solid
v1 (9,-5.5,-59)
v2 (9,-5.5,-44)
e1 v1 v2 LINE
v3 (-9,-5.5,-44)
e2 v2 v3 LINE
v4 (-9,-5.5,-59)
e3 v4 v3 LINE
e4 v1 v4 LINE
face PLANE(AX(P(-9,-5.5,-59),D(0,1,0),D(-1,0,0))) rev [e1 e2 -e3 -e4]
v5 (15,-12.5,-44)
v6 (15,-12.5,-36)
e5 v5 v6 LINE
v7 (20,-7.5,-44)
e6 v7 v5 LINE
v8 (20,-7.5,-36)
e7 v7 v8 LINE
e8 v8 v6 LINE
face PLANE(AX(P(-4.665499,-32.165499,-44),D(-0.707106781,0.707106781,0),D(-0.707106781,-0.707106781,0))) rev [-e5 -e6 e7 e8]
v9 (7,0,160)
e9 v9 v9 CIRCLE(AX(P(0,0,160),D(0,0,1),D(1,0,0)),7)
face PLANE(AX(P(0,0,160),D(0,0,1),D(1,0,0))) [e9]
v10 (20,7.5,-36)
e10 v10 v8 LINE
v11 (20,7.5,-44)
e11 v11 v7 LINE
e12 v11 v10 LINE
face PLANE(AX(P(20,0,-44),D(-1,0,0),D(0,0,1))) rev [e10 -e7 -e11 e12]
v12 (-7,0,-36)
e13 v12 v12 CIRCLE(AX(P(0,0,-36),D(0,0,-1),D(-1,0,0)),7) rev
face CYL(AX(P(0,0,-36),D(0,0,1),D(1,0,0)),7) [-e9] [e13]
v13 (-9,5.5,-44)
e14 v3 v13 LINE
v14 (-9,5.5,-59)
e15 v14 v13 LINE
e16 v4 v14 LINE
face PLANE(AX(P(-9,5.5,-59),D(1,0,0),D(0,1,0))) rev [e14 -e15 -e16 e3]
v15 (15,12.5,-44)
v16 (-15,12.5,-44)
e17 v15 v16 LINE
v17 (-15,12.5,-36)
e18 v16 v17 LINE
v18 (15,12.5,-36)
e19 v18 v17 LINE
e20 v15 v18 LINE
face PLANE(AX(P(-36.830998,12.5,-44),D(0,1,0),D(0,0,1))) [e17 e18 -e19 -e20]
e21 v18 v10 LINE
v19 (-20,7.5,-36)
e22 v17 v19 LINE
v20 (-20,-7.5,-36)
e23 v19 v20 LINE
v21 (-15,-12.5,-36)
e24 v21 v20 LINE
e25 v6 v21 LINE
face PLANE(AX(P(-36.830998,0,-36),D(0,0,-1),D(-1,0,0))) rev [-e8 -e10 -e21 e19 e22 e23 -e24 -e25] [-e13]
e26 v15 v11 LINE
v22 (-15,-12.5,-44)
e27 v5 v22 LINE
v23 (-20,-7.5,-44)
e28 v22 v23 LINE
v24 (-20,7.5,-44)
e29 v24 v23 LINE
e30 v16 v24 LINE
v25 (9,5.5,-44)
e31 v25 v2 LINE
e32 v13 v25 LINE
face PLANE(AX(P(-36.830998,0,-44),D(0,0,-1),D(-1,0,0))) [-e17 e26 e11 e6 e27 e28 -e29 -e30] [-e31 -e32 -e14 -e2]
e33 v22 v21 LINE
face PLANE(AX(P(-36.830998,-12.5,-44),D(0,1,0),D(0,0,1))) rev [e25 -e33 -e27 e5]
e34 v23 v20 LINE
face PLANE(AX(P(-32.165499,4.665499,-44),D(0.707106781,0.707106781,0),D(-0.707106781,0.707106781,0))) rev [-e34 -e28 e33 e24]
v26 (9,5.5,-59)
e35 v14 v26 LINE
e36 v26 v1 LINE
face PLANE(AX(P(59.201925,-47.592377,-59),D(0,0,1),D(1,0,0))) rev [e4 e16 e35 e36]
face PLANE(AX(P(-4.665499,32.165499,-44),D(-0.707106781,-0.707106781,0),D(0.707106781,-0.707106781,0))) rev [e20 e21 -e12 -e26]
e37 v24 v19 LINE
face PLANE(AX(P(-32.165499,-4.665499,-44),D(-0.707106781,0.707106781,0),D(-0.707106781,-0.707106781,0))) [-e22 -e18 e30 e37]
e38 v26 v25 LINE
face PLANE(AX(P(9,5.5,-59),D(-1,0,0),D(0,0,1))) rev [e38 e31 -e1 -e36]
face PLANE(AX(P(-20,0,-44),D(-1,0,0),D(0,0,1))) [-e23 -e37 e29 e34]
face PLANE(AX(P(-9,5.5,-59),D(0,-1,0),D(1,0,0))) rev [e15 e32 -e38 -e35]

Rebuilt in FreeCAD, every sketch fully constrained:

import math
import FreeCAD as App
import Part
import Sketcher
Q = App.Units.Quantity

doc = App.newDocument("Part")
body = doc.addObject("PartDesign::Body", "Body")

# Sketch on XY plane
sketch1 = body.newObject("Sketcher::SketchObject", "Sketch")
sketch1.AttachmentSupport = (doc.getObject("XY_Plane"), [""])
sketch1.MapMode = "FlatFace"
sketch1.addGeometry(Part.Circle(App.Vector(0, 0, 0), App.Vector(0, 0, 1), 7), False)
sketch1.addConstraint([
    Sketcher.Constraint("Coincident", 0, 3, -1, 1),
    Sketcher.Constraint("Diameter", 0, Q("14 mm")),
])
pad1 = body.newObject("PartDesign::Pad", "Pad")
pad1.Profile = sketch1
pad1.Type = "TwoLengths"
pad1.Length = 160
pad1.Length2 = 36

# Sketch on XY plane
sketch2 = body.newObject("Sketcher::SketchObject", "Sketch001")
sketch2.AttachmentSupport = (doc.getObject("XY_Plane"), [""])
sketch2.MapMode = "FlatFace"
sketch2.AttachmentOffset = App.Placement(App.Vector(0, 0, -36), App.Rotation())
sketch2.addGeometry([
    Part.LineSegment(App.Vector(-20, 7.5, 0), App.Vector(-15, 12.5, 0)),  # 0
    Part.LineSegment(App.Vector(-15, 12.5, 0), App.Vector(15, 12.5, 0)),  # 1
    Part.LineSegment(App.Vector(15, 12.5, 0), App.Vector(20, 7.5, 0)),  # 2
    Part.LineSegment(App.Vector(20, 7.5, 0), App.Vector(20, -7.5, 0)),  # 3
    Part.LineSegment(App.Vector(20, -7.5, 0), App.Vector(15, -12.5, 0)),  # 4
    Part.LineSegment(App.Vector(15, -12.5, 0), App.Vector(-15, -12.5, 0)),  # 5
    Part.LineSegment(App.Vector(-15, -12.5, 0), App.Vector(-20, -7.5, 0)),  # 6
    Part.LineSegment(App.Vector(-20, -7.5, 0), App.Vector(-20, 7.5, 0)),  # 7
], False)
sketch2.addConstraint([
    Sketcher.Constraint("Coincident", 0, 2, 1, 1),
    Sketcher.Constraint("Coincident", 1, 2, 2, 1),
    Sketcher.Constraint("Coincident", 2, 2, 3, 1),
    Sketcher.Constraint("Coincident", 3, 2, 4, 1),
    Sketcher.Constraint("Coincident", 4, 2, 5, 1),
    Sketcher.Constraint("Coincident", 5, 2, 6, 1),
    Sketcher.Constraint("Coincident", 6, 2, 7, 1),
    Sketcher.Constraint("Coincident", 7, 2, 0, 1),
    Sketcher.Constraint("Horizontal", 1),
    Sketcher.Constraint("Vertical", 3),
    Sketcher.Constraint("Horizontal", 5),
    Sketcher.Constraint("Vertical", 7),
    Sketcher.Constraint("Symmetric", 0, 2, 4, 2, -1, 1),
    Sketcher.Constraint("Symmetric", 2, 2, 6, 2, -1, 1),
    Sketcher.Constraint("Perpendicular", 0, 2),
    Sketcher.Constraint("Perpendicular", 2, 4),
    Sketcher.Constraint("Perpendicular", 4, 6),
    Sketcher.Constraint("Horizontal", 3, 2, 6, 2),
    Sketcher.Constraint("Vertical", 1, 2, 4, 2),
    Sketcher.Constraint("DistanceX", 1, 1, 1, 2, Q("30 mm")),
    Sketcher.Constraint("DistanceY", 3, 2, 3, 1, Q("15 mm")),
    Sketcher.Constraint("DistanceX", -1, 1, 2, 2, Q("20 mm")),
])
pad2 = body.newObject("PartDesign::Pad", "Pad001")
pad2.Profile = sketch2
pad2.Length = 8
pad2.Reversed = True

# Sketch on XY plane
sketch3 = body.newObject("Sketcher::SketchObject", "Sketch002")
sketch3.AttachmentSupport = (doc.getObject("XY_Plane"), [""])
sketch3.MapMode = "FlatFace"
sketch3.AttachmentOffset = App.Placement(App.Vector(0, 0, -44), App.Rotation())
sketch3.addGeometry([
    Part.LineSegment(App.Vector(9, 5.5, 0), App.Vector(9, -5.5, 0)),
    Part.LineSegment(App.Vector(9, -5.5, 0), App.Vector(-9, -5.5, 0)),
    Part.LineSegment(App.Vector(-9, -5.5, 0), App.Vector(-9, 5.5, 0)),
    Part.LineSegment(App.Vector(-9, 5.5, 0), App.Vector(9, 5.5, 0)),
], False)
sketch3.addConstraint([
    Sketcher.Constraint("Coincident", 0, 2, 1, 1),
    Sketcher.Constraint("Coincident", 1, 2, 2, 1),
    Sketcher.Constraint("Coincident", 2, 2, 3, 1),
    Sketcher.Constraint("Coincident", 3, 2, 0, 1),
    Sketcher.Constraint("Vertical", 0),
    Sketcher.Constraint("Horizontal", 1),
    Sketcher.Constraint("Vertical", 2),
    Sketcher.Constraint("Horizontal", 3),
    Sketcher.Constraint("Symmetric", 0, 2, 2, 2, -1, 1),
    Sketcher.Constraint("DistanceX", 1, 2, 1, 1, Q("18 mm")),
    Sketcher.Constraint("DistanceY", 0, 2, 0, 1, Q("11 mm")),
])
pad3 = body.newObject("PartDesign::Pad", "Pad002")
pad3.Profile = sketch3
pad3.Length = 15
pad3.Reversed = True

# Sketch on XY plane
sketch4 = body.newObject("Sketcher::SketchObject", "Sketch003")
sketch4.AttachmentSupport = (doc.getObject("XY_Plane"), [""])
sketch4.MapMode = "FlatFace"
sketch4.AttachmentOffset = App.Placement(App.Vector(0, 0, -59), App.Rotation())
sketch4.addGeometry([
    Part.ArcOfCircle(Part.Circle(App.Vector(15, 0, 0), App.Vector(0, 0, 1), 12.5), math.radians(-90), math.radians(90)),  # 0
    Part.LineSegment(App.Vector(15, -12.5, 0), App.Vector(-15, -12.5, 0)),  # 1
    Part.ArcOfCircle(Part.Circle(App.Vector(-15, 0, 0), App.Vector(0, 0, 1), 12.5), math.radians(180), math.radians(270)),  # 2
    Part.ArcOfCircle(Part.Circle(App.Vector(-15, 0, 0), App.Vector(0, 0, 1), 12.5), math.radians(90), math.radians(180)),  # 3
    Part.LineSegment(App.Vector(-15, 12.5, 0), App.Vector(15, 12.5, 0)),  # 4
], False)
sketch4.addConstraint([
    Sketcher.Constraint("Tangent", 0, 1, 1, 1),
    Sketcher.Constraint("Tangent", 1, 2, 2, 2),
    Sketcher.Constraint("Tangent", 2, 1, 3, 2),
    Sketcher.Constraint("Tangent", 3, 1, 4, 1),
    Sketcher.Constraint("Tangent", 4, 2, 0, 2),
    Sketcher.Constraint("Horizontal", 1),
    Sketcher.Constraint("Horizontal", 4),
    Sketcher.Constraint("Equal", 0, 2),
    Sketcher.Constraint("Symmetric", 0, 3, 2, 3, -1, 1),
    Sketcher.Constraint("PointOnObject", 2, 1, -1),
    Sketcher.Constraint("Radius", 0, Q("12.5 mm")),
    Sketcher.Constraint("DistanceX", 1, 2, 1, 1, Q("30 mm")),
])
pad4 = body.newObject("PartDesign::Pad", "Pad003")
pad4.Profile = sketch4
pad4.Length = 30
pad4.Reversed = True

# Sketch on XY plane
sketch5 = body.newObject("Sketcher::SketchObject", "Sketch004")
sketch5.AttachmentSupport = (doc.getObject("XY_Plane"), [""])
sketch5.MapMode = "FlatFace"
sketch5.AttachmentOffset = App.Placement(App.Vector(0, 0, -89), App.Rotation())
sketch5.addGeometry([
    Part.LineSegment(App.Vector(30, 20, 0), App.Vector(30, -20, 0)),
    Part.LineSegment(App.Vector(30, -20, 0), App.Vector(-30, -20, 0)),
    Part.LineSegment(App.Vector(-30, -20, 0), App.Vector(-30, 20, 0)),
    Part.LineSegment(App.Vector(-30, 20, 0), App.Vector(30, 20, 0)),
], False)
sketch5.addConstraint([
    Sketcher.Constraint("Coincident", 0, 2, 1, 1),
    Sketcher.Constraint("Coincident", 1, 2, 2, 1),
    Sketcher.Constraint("Coincident", 2, 2, 3, 1),
    Sketcher.Constraint("Coincident", 3, 2, 0, 1),
    Sketcher.Constraint("Vertical", 0),
    Sketcher.Constraint("Horizontal", 1),
    Sketcher.Constraint("Vertical", 2),
    Sketcher.Constraint("Horizontal", 3),
    Sketcher.Constraint("Symmetric", 0, 2, 2, 2, -1, 1),
    Sketcher.Constraint("DistanceX", 1, 2, 1, 1, Q("60 mm")),
    Sketcher.Constraint("DistanceY", 0, 2, 0, 1, Q("40 mm")),
])
pad5 = body.newObject("PartDesign::Pad", "Pad004")
pad5.Profile = sketch5
pad5.Length = 6
pad5.Reversed = True

# Sketch on XY plane
sketch6 = body.newObject("Sketcher::SketchObject", "Sketch005")
sketch6.AttachmentSupport = (doc.getObject("XY_Plane"), [""])
sketch6.MapMode = "FlatFace"
sketch6.AttachmentOffset = App.Placement(App.Vector(0, 0, -95), App.Rotation())
sketch6.addGeometry([
    Part.LineSegment(App.Vector(30, 20, 0), App.Vector(30, 14, 0)),  # 0
    Part.LineSegment(App.Vector(30, 14, 0), App.Vector(-30, 14, 0)),  # 1
    Part.LineSegment(App.Vector(-30, 14, 0), App.Vector(-30, 20, 0)),  # 2
    Part.LineSegment(App.Vector(-30, 20, 0), App.Vector(30, 20, 0)),  # 3
    Part.LineSegment(App.Vector(30, -14, 0), App.Vector(30, -20, 0)),  # 4
    Part.LineSegment(App.Vector(30, -20, 0), App.Vector(-30, -20, 0)),  # 5
    Part.LineSegment(App.Vector(-30, -20, 0), App.Vector(-30, -14, 0)),  # 6
    Part.LineSegment(App.Vector(-30, -14, 0), App.Vector(30, -14, 0)),  # 7
], False)
sketch6.addConstraint([
    Sketcher.Constraint("Coincident", 0, 2, 1, 1),
    Sketcher.Constraint("Coincident", 1, 2, 2, 1),
    Sketcher.Constraint("Coincident", 2, 2, 3, 1),
    Sketcher.Constraint("Coincident", 3, 2, 0, 1),
    Sketcher.Constraint("Coincident", 4, 2, 5, 1),
    Sketcher.Constraint("Coincident", 5, 2, 6, 1),
    Sketcher.Constraint("Coincident", 6, 2, 7, 1),
    Sketcher.Constraint("Coincident", 7, 2, 4, 1),
    Sketcher.Constraint("Vertical", 0),
    Sketcher.Constraint("Horizontal", 1),
    Sketcher.Constraint("Vertical", 2),
    Sketcher.Constraint("Horizontal", 3),
    Sketcher.Constraint("Vertical", 4),
    Sketcher.Constraint("Horizontal", 5),
    Sketcher.Constraint("Vertical", 6),
    Sketcher.Constraint("Horizontal", 7),
    Sketcher.Constraint("Symmetric", 2, 2, 4, 2, -1, 1),
    Sketcher.Constraint("Symmetric", 0, 2, 6, 2, -1, 1),
    Sketcher.Constraint("Vertical", 3, 2, 4, 2),
    Sketcher.Constraint("DistanceX", 1, 2, 1, 1, Q("60 mm")),
    Sketcher.Constraint("DistanceY", 0, 2, 0, 1, Q("6 mm")),
    Sketcher.Constraint("DistanceY", -1, 1, 0, 2, Q("14 mm")),
])
pad6 = body.newObject("PartDesign::Pad", "Pad005")
pad6.Profile = sketch6
pad6.Length = 60
pad6.Reversed = True

# Sketch on YZ plane
sketch7 = body.newObject("Sketcher::SketchObject", "Sketch006")
sketch7.AttachmentSupport = (doc.getObject("YZ_Plane"), [""])
sketch7.MapMode = "FlatFace"
sketch7.AttachmentOffset = App.Placement(App.Vector(0, 0, -30), App.Rotation())
sketch7.addGeometry([
    Part.LineSegment(App.Vector(8, -125, 0), App.Vector(14, -125, 0)),  # 0
    Part.LineSegment(App.Vector(14, -125, 0), App.Vector(14, -166, 0)),  # 1
    Part.LineSegment(App.Vector(14, -166, 0), App.Vector(4, -166, 0)),  # 2
    Part.LineSegment(App.Vector(4, -166, 0), App.Vector(4, -195.455878, 0)),  # 3
    Part.LineSegment(App.Vector(4, -195.455878, 0), App.Vector(-4, -195.455878, 0)),  # 4
    Part.LineSegment(App.Vector(-4, -195.455878, 0), App.Vector(-4, -166, 0)),  # 5
    Part.LineSegment(App.Vector(-4, -166, 0), App.Vector(-14, -166, 0)),  # 6
    Part.LineSegment(App.Vector(-14, -166, 0), App.Vector(-14, -125, 0)),  # 7
    Part.LineSegment(App.Vector(-14, -125, 0), App.Vector(-8, -125, 0)),  # 8
    Part.LineSegment(App.Vector(-8, -125, 0), App.Vector(-8, -160, 0)),  # 9
    Part.LineSegment(App.Vector(-8, -160, 0), App.Vector(8, -160, 0)),  # 10
    Part.LineSegment(App.Vector(8, -160, 0), App.Vector(8, -125, 0)),  # 11
], False)
sketch7.addConstraint([
    Sketcher.Constraint("Coincident", 0, 2, 1, 1),
    Sketcher.Constraint("Coincident", 1, 2, 2, 1),
    Sketcher.Constraint("Coincident", 2, 2, 3, 1),
    Sketcher.Constraint("Coincident", 3, 2, 4, 1),
    Sketcher.Constraint("Coincident", 4, 2, 5, 1),
    Sketcher.Constraint("Coincident", 5, 2, 6, 1),
    Sketcher.Constraint("Coincident", 6, 2, 7, 1),
    Sketcher.Constraint("Coincident", 7, 2, 8, 1),
    Sketcher.Constraint("Coincident", 8, 2, 9, 1),
    Sketcher.Constraint("Coincident", 9, 2, 10, 1),
    Sketcher.Constraint("Coincident", 10, 2, 11, 1),
    Sketcher.Constraint("Coincident", 11, 2, 0, 1),
    Sketcher.Constraint("Horizontal", 0),
    Sketcher.Constraint("Vertical", 1),
    Sketcher.Constraint("Horizontal", 2),
    Sketcher.Constraint("Vertical", 3),
    Sketcher.Constraint("Horizontal", 4),
    Sketcher.Constraint("Vertical", 5),
    Sketcher.Constraint("Horizontal", 6),
    Sketcher.Constraint("Vertical", 7),
    Sketcher.Constraint("Horizontal", 8),
    Sketcher.Constraint("Vertical", 9),
    Sketcher.Constraint("Horizontal", 10),
    Sketcher.Constraint("Vertical", 11),
    Sketcher.Constraint("Symmetric", 2, 2, 5, 2, -2),
    Sketcher.Constraint("Symmetric", 0, 2, 7, 2, -2),
    Sketcher.Constraint("Equal", 0, 8),
    Sketcher.Constraint("DistanceX", 0, 1, 0, 2, Q("6 mm")),
    Sketcher.Constraint("DistanceX", 2, 2, 2, 1, Q("10 mm")),
    Sketcher.Constraint("DistanceX", 4, 2, 4, 1, Q("8 mm")),
    Sketcher.Constraint("DistanceY", 1, 2, 1, 1, Q("41 mm")),
    Sketcher.Constraint("DistanceY", 9, 2, 9, 1, Q("35 mm")),
    Sketcher.Constraint("DistanceY", 0, 2, -1, 1, Q("125 mm")),
    Sketcher.Constraint("DistanceY", 3, 2, 3, 1, Q("29.455878 mm")),
])
pad7 = body.newObject("PartDesign::Pad", "Pad006")
pad7.Profile = sketch7
pad7.Length = 8
doc.recompute()

linearpattern = body.newObject("PartDesign::LinearPattern", "LinearPattern")
linearpattern.Originals = [pad7]
linearpattern.Direction = (doc.getObject("X_Axis"), [""])
linearpattern.Mode = "offset"
linearpattern.Offset = 52
linearpattern.Occurrences = 2
body.Tip = linearpattern

# Sketch on XY plane
sketch8 = body.newObject("Sketcher::SketchObject", "Sketch007")
sketch8.AttachmentSupport = (doc.getObject("XY_Plane"), [""])
sketch8.MapMode = "FlatFace"
sketch8.AttachmentOffset = App.Placement(App.Vector(0, 0, -59), App.Rotation())
sketch8.addGeometry([
    Part.LineSegment(App.Vector(-59.201925, 47.592377, 0), App.Vector(-59.201925, -47.592377, 0)),
    Part.LineSegment(App.Vector(-59.201925, -47.592377, 0), App.Vector(59.201925, -47.592377, 0)),
    Part.LineSegment(App.Vector(59.201925, -47.592377, 0), App.Vector(59.201925, 47.592377, 0)),
    Part.LineSegment(App.Vector(59.201925, 47.592377, 0), App.Vector(-59.201925, 47.592377, 0)),
], False)
sketch8.addConstraint([
    Sketcher.Constraint("Coincident", 0, 2, 1, 1),
    Sketcher.Constraint("Coincident", 1, 2, 2, 1),
    Sketcher.Constraint("Coincident", 2, 2, 3, 1),
    Sketcher.Constraint("Coincident", 3, 2, 0, 1),
    Sketcher.Constraint("Vertical", 0),
    Sketcher.Constraint("Horizontal", 1),
    Sketcher.Constraint("Vertical", 2),
    Sketcher.Constraint("Horizontal", 3),
    Sketcher.Constraint("Symmetric", 0, 2, 2, 2, -1, 1),
    Sketcher.Constraint("DistanceX", 1, 1, 1, 2, Q("118.40385 mm")),
    Sketcher.Constraint("DistanceY", 0, 2, 0, 1, Q("95.184754 mm")),
])
pocket1 = body.newObject("PartDesign::Pocket", "Pocket")
pocket1.Profile = sketch8
pocket1.Length = 200

doc.recompute()
